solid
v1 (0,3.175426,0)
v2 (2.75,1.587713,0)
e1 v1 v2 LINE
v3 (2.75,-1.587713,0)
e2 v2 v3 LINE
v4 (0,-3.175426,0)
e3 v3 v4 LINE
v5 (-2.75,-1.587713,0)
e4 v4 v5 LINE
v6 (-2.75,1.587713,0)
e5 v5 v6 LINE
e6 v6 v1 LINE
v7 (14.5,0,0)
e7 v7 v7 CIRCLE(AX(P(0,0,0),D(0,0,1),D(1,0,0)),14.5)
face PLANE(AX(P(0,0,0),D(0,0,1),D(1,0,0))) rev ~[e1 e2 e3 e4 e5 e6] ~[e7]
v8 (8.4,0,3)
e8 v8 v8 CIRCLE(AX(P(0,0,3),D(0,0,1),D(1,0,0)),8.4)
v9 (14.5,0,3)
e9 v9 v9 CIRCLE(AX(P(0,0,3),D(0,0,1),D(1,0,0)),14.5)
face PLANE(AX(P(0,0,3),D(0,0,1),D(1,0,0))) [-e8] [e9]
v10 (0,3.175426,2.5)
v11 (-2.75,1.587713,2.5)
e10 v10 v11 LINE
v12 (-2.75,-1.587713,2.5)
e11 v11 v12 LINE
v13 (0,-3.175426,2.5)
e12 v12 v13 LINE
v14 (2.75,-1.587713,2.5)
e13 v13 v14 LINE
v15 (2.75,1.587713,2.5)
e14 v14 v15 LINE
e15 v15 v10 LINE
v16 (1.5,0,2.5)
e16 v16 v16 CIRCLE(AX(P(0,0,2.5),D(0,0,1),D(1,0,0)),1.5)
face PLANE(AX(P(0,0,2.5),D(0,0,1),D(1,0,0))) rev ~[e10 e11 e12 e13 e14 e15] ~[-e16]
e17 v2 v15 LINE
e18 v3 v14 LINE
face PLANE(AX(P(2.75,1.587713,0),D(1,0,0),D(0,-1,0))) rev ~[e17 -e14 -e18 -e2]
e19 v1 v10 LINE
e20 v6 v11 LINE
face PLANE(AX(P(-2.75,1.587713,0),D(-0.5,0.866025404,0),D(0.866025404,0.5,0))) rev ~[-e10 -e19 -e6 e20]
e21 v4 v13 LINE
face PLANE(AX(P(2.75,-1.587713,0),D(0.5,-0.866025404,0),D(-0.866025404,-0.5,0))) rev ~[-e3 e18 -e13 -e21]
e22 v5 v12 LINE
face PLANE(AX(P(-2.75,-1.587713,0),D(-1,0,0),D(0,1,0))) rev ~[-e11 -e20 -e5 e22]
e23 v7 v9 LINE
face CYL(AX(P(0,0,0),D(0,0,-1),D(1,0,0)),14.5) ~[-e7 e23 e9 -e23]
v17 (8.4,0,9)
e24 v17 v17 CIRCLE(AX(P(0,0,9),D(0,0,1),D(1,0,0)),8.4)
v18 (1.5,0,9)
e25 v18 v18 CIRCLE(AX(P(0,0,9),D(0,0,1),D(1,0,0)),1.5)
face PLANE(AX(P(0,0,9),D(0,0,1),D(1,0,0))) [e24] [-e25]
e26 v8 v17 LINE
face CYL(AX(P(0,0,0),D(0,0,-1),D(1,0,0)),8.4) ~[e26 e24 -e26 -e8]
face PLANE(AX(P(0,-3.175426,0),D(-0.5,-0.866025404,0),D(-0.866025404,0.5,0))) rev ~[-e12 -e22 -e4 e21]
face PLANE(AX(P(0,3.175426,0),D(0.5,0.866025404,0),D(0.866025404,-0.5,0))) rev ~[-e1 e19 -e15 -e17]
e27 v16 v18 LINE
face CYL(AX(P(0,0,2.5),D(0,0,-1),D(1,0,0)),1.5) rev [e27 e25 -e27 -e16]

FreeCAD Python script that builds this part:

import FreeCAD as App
import Part
import Sketcher

V = App.Vector
Q = App.Units.Quantity


def add_polygon(sketch, points):
    """Adds a closed chain of lines whose ends are joined by coincident constraints."""
    first, n = sketch.GeometryCount, len(points)
    for a, b in zip(points, points[1:] + points[:1]):
        sketch.addGeometry(Part.LineSegment(App.Vector(*a, 0), App.Vector(*b, 0)), False)
    for i in range(n):
        sketch.addConstraint(Sketcher.Constraint("Coincident", first + i, 2, first + (i + 1) % n, 1))

doc = App.newDocument("Part")
body = doc.addObject("PartDesign::Body", "Body")

sketch1 = body.newObject("Sketcher::SketchObject", "Sketch")
sketch1.AttachmentSupport = (doc.getObject("XY_Plane"), [""])
sketch1.MapMode = "FlatFace"
sketch1.addGeometry([
    Part.Circle(V(0, 0, 0), V(0, 0, 1), 14.5),
    Part.Circle(V(0, 0, 0), V(0, 0, 1), 8.4),
], False)
sketch1.addConstraint([
    Sketcher.Constraint("Coincident", 0, 3, -1, 1),
    Sketcher.Constraint("Coincident", 1, 3, -1, 1),
    Sketcher.Constraint("Diameter", 0, 29.0),
    Sketcher.Constraint("Diameter", 1, 16.8),
])
pad1 = body.newObject("PartDesign::Pad", "Pad")
pad1.Profile = sketch1
pad1.Length = 3

sketch2 = body.newObject("Sketcher::SketchObject", "Sketch001")
sketch2.AttachmentSupport = (doc.getObject("XY_Plane"), [""])
sketch2.MapMode = "FlatFace"
sketch2.addGeometry(Part.Circle(V(0, 0, 0), V(0, 0, 1), 8.4), False)
add_polygon(sketch2, [(0, -3.175426), (-2.75, -1.587713), (-2.75, 1.587713), (0, 3.175426), (2.75, 1.587713), (2.75, -1.587713)])
sketch2.addConstraint([
    Sketcher.Constraint("Vertical", 2),
    Sketcher.Constraint("Vertical", 5),
    Sketcher.Constraint("Coincident", 0, 3, -1, 1),
    Sketcher.Constraint("Symmetric", 1, 2, 4, 2, -1, 1),
    Sketcher.Constraint("Symmetric", 3, 2, 6, 2, -1, 1),
    Sketcher.Constraint("PointOnObject", 3, 2, -2),
    Sketcher.Constraint("Parallel", 3, 6),
    Sketcher.Constraint("Horizontal", 2, 2, 4, 2),
    Sketcher.Constraint("Diameter", 0, 16.8),
    Sketcher.Constraint("Angle", 1, Q("150 deg")),
    Sketcher.Constraint("DistanceX", 2, 2, 4, 2, 5.5),
    Sketcher.Constraint("DistanceY", 2, 1, 2, 2, 3.175426),
])
pad2 = body.newObject("PartDesign::Pad", "Pad001")
pad2.Profile = sketch2
pad2.Length = 9

sketch3 = body.newObject("Sketcher::SketchObject", "Sketch002")
sketch3.AttachmentSupport = (doc.getObject("XY_Plane"), [""])
sketch3.MapMode = "FlatFace"
sketch3.AttachmentOffset = App.Placement(V(0, 0, 2.5), App.Rotation())
add_polygon(sketch3, [(0, 3.175426), (-2.75, 1.587713), (-2.75, -1.587713), (0, -3.175426), (2.75, -1.587713), (2.75, 1.587713)])
sketch3.addGeometry(Part.Circle(V(0, 0, 0), V(0, 0, 1), 1.5), False)
sketch3.addConstraint([
    Sketcher.Constraint("Vertical", 1),
    Sketcher.Constraint("Vertical", 4),
    Sketcher.Constraint("Coincident", 6, 3, -1, 1),
    Sketcher.Constraint("Symmetric", 0, 2, 3, 2, -1, 1),
    Sketcher.Constraint("Symmetric", 2, 2, 5, 2, -1, 1),
    Sketcher.Constraint("PointOnObject", 2, 2, -2),
    Sketcher.Constraint("Parallel", 2, 5),
    Sketcher.Constraint("Horizontal", 1, 2, 3, 2),
    Sketcher.Constraint("Diameter", 6, 3.0),
    Sketcher.Constraint("Angle", 0, Q("-150 deg")),
    Sketcher.Constraint("DistanceX", 1, 2, 3, 2, 5.5),
    Sketcher.Constraint("DistanceY", 1, 2, 1, 1, 3.175426),
])
pad3 = body.newObject("PartDesign::Pad", "Pad002")
pad3.Profile = sketch3
pad3.Length = 6.5

doc.recompute()
